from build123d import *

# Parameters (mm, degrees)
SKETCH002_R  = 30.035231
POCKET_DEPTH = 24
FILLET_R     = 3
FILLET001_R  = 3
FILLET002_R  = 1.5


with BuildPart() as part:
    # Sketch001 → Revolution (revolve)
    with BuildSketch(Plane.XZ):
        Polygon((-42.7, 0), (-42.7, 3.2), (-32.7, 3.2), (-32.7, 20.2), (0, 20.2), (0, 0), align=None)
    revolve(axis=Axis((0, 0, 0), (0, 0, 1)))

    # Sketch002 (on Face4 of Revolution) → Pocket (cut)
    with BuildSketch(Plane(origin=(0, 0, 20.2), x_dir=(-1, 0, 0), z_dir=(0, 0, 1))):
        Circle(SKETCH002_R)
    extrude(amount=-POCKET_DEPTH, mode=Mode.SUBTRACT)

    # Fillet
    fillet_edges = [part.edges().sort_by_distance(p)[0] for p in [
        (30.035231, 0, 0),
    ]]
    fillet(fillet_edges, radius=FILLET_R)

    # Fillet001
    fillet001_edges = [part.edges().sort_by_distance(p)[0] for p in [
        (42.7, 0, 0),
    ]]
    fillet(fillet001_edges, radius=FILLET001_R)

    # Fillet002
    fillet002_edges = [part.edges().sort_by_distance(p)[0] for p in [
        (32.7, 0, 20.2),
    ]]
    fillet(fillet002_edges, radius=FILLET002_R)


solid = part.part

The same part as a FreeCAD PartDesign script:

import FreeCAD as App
import Part
import Sketcher


def edges_at(feature, points):
    """Names of the edges that pass closest to the given points."""
    edges = feature.Shape.Edges
    near = lambda p: min(range(len(edges)), key=lambda i: edges[i].distToShape(Part.Vertex(*p))[0])
    return sorted({f"Edge{near(p) + 1}" for p in points})

doc = App.newDocument("Part")
params = doc.addObject("Spreadsheet::Sheet", "Params")
for row, (alias, value) in enumerate([
    ("sketch1_width", "10 mm"),
    ("sketch1_height", "17 mm"),
    ("sketch1_width2", "42.7 mm"),
    ("sketch1_height2", "3.2 mm"),
    ("revolution_angle", "360 deg"),
    ("pocket1_length", "24 mm"),
    ("fillet_radius", "3 mm"),
    ("fillet2_radius", "3 mm"),
    ("fillet3_radius", "1.5 mm"),
], start=1):
    params.set(f"A{row}", alias)
    params.set(f"B{row}", "=" + value)
    params.setAlias(f"B{row}", alias)

body = doc.addObject("PartDesign::Body", "Body")

# Sketch on XZ plane
sketch1 = body.newObject("Sketcher::SketchObject", "Sketch")
sketch1.AttachmentSupport = (doc.getObject("XZ_Plane"), [""])
sketch1.MapMode = "FlatFace"
sketch1.addGeometry([
    Part.LineSegment(App.Vector(-42.7, 3.2, 0), App.Vector(-42.7, 0, 0)),  # 0
    Part.LineSegment(App.Vector(-42.7, 0, 0), App.Vector(0, 0, 0)),  # 1
    Part.LineSegment(App.Vector(0, 0, 0), App.Vector(0, 20.2, 0)),  # 2
    Part.LineSegment(App.Vector(0, 20.2, 0), App.Vector(-32.7, 20.2, 0)),  # 3
    Part.LineSegment(App.Vector(-32.7, 20.2, 0), App.Vector(-32.7, 3.2, 0)),  # 4
    Part.LineSegment(App.Vector(-32.7, 3.2, 0), App.Vector(-42.7, 3.2, 0)),  # 5
], False)
sketch1.addConstraint([
    Sketcher.Constraint("Coincident", 0, 2, 1, 1),
    Sketcher.Constraint("Coincident", 1, 2, 2, 1),
    Sketcher.Constraint("Coincident", 2, 2, 3, 1),
    Sketcher.Constraint("Coincident", 3, 2, 4, 1),
    Sketcher.Constraint("Coincident", 4, 2, 5, 1),
    Sketcher.Constraint("Coincident", 5, 2, 0, 1),
    Sketcher.Constraint("Vertical", 0),
    Sketcher.Constraint("Horizontal", 1),
    Sketcher.Constraint("Vertical", 2),
    Sketcher.Constraint("Horizontal", 3),
    Sketcher.Constraint("Vertical", 4),
    Sketcher.Constraint("Horizontal", 5),
    Sketcher.Constraint("Coincident", 1, 2, -1, 1),
    Sketcher.Constraint("DistanceX", 5, 2, 5, 1, 10.0),
    Sketcher.Constraint("DistanceY", 4, 2, 4, 1, 17.0),
    Sketcher.Constraint("DistanceX", 1, 1, 1, 2, 42.7),
    Sketcher.Constraint("DistanceY", 0, 2, 0, 1, 3.2),
])
sketch1.setExpression("Constraints[13]", "Params.sketch1_width")
sketch1.setExpression("Constraints[14]", "Params.sketch1_height")
sketch1.setExpression("Constraints[15]", "Params.sketch1_width2")
sketch1.setExpression("Constraints[16]", "Params.sketch1_height2")
revolution = body.newObject("PartDesign::Revolution", "Revolution")
revolution.Profile = sketch1
revolution.ReferenceAxis = (sketch1, ["V_Axis"])
revolution.setExpression("Angle", "Params.revolution_angle")

# Sketch on XY plane
sketch2 = body.newObject("Sketcher::SketchObject", "Sketch001")
sketch2.AttachmentSupport = (doc.getObject("XY_Plane"), [""])
sketch2.MapMode = "FlatFace"
sketch2.AttachmentOffset = App.Placement(App.Vector(0, 0, 20.2), App.Rotation())
sketch2.addGeometry(Part.Circle(App.Vector(0, 0, 0), App.Vector(0, 0, 1), 30.035231), False)
sketch2.addConstraint([
    Sketcher.Constraint("Coincident", 0, 3, -1, 1),
    Sketcher.Constraint("Diameter", 0, 60.070462),
])
pocket1 = body.newObject("PartDesign::Pocket", "Pocket")
pocket1.Profile = sketch2
pocket1.setExpression("Length", "Params.pocket1_length")
doc.recompute()

fillet = body.newObject("PartDesign::Fillet", "Fillet")
fillet.Base = (pocket1, edges_at(pocket1, [(30.035, 0, 0)]))
fillet.setExpression("Radius", "Params.fillet_radius")
doc.recompute()

fillet2 = body.newObject("PartDesign::Fillet", "Fillet001")
fillet2.Base = (fillet, edges_at(fillet, [(42.7, 0, 0)]))
fillet2.setExpression("Radius", "Params.fillet2_radius")
doc.recompute()

fillet3 = body.newObject("PartDesign::Fillet", "Fillet002")
fillet3.Base = (fillet2, edges_at(fillet2, [(32.7, 0, 20.2)]))
fillet3.setExpression("Radius", "Params.fillet3_radius")

doc.recompute()
